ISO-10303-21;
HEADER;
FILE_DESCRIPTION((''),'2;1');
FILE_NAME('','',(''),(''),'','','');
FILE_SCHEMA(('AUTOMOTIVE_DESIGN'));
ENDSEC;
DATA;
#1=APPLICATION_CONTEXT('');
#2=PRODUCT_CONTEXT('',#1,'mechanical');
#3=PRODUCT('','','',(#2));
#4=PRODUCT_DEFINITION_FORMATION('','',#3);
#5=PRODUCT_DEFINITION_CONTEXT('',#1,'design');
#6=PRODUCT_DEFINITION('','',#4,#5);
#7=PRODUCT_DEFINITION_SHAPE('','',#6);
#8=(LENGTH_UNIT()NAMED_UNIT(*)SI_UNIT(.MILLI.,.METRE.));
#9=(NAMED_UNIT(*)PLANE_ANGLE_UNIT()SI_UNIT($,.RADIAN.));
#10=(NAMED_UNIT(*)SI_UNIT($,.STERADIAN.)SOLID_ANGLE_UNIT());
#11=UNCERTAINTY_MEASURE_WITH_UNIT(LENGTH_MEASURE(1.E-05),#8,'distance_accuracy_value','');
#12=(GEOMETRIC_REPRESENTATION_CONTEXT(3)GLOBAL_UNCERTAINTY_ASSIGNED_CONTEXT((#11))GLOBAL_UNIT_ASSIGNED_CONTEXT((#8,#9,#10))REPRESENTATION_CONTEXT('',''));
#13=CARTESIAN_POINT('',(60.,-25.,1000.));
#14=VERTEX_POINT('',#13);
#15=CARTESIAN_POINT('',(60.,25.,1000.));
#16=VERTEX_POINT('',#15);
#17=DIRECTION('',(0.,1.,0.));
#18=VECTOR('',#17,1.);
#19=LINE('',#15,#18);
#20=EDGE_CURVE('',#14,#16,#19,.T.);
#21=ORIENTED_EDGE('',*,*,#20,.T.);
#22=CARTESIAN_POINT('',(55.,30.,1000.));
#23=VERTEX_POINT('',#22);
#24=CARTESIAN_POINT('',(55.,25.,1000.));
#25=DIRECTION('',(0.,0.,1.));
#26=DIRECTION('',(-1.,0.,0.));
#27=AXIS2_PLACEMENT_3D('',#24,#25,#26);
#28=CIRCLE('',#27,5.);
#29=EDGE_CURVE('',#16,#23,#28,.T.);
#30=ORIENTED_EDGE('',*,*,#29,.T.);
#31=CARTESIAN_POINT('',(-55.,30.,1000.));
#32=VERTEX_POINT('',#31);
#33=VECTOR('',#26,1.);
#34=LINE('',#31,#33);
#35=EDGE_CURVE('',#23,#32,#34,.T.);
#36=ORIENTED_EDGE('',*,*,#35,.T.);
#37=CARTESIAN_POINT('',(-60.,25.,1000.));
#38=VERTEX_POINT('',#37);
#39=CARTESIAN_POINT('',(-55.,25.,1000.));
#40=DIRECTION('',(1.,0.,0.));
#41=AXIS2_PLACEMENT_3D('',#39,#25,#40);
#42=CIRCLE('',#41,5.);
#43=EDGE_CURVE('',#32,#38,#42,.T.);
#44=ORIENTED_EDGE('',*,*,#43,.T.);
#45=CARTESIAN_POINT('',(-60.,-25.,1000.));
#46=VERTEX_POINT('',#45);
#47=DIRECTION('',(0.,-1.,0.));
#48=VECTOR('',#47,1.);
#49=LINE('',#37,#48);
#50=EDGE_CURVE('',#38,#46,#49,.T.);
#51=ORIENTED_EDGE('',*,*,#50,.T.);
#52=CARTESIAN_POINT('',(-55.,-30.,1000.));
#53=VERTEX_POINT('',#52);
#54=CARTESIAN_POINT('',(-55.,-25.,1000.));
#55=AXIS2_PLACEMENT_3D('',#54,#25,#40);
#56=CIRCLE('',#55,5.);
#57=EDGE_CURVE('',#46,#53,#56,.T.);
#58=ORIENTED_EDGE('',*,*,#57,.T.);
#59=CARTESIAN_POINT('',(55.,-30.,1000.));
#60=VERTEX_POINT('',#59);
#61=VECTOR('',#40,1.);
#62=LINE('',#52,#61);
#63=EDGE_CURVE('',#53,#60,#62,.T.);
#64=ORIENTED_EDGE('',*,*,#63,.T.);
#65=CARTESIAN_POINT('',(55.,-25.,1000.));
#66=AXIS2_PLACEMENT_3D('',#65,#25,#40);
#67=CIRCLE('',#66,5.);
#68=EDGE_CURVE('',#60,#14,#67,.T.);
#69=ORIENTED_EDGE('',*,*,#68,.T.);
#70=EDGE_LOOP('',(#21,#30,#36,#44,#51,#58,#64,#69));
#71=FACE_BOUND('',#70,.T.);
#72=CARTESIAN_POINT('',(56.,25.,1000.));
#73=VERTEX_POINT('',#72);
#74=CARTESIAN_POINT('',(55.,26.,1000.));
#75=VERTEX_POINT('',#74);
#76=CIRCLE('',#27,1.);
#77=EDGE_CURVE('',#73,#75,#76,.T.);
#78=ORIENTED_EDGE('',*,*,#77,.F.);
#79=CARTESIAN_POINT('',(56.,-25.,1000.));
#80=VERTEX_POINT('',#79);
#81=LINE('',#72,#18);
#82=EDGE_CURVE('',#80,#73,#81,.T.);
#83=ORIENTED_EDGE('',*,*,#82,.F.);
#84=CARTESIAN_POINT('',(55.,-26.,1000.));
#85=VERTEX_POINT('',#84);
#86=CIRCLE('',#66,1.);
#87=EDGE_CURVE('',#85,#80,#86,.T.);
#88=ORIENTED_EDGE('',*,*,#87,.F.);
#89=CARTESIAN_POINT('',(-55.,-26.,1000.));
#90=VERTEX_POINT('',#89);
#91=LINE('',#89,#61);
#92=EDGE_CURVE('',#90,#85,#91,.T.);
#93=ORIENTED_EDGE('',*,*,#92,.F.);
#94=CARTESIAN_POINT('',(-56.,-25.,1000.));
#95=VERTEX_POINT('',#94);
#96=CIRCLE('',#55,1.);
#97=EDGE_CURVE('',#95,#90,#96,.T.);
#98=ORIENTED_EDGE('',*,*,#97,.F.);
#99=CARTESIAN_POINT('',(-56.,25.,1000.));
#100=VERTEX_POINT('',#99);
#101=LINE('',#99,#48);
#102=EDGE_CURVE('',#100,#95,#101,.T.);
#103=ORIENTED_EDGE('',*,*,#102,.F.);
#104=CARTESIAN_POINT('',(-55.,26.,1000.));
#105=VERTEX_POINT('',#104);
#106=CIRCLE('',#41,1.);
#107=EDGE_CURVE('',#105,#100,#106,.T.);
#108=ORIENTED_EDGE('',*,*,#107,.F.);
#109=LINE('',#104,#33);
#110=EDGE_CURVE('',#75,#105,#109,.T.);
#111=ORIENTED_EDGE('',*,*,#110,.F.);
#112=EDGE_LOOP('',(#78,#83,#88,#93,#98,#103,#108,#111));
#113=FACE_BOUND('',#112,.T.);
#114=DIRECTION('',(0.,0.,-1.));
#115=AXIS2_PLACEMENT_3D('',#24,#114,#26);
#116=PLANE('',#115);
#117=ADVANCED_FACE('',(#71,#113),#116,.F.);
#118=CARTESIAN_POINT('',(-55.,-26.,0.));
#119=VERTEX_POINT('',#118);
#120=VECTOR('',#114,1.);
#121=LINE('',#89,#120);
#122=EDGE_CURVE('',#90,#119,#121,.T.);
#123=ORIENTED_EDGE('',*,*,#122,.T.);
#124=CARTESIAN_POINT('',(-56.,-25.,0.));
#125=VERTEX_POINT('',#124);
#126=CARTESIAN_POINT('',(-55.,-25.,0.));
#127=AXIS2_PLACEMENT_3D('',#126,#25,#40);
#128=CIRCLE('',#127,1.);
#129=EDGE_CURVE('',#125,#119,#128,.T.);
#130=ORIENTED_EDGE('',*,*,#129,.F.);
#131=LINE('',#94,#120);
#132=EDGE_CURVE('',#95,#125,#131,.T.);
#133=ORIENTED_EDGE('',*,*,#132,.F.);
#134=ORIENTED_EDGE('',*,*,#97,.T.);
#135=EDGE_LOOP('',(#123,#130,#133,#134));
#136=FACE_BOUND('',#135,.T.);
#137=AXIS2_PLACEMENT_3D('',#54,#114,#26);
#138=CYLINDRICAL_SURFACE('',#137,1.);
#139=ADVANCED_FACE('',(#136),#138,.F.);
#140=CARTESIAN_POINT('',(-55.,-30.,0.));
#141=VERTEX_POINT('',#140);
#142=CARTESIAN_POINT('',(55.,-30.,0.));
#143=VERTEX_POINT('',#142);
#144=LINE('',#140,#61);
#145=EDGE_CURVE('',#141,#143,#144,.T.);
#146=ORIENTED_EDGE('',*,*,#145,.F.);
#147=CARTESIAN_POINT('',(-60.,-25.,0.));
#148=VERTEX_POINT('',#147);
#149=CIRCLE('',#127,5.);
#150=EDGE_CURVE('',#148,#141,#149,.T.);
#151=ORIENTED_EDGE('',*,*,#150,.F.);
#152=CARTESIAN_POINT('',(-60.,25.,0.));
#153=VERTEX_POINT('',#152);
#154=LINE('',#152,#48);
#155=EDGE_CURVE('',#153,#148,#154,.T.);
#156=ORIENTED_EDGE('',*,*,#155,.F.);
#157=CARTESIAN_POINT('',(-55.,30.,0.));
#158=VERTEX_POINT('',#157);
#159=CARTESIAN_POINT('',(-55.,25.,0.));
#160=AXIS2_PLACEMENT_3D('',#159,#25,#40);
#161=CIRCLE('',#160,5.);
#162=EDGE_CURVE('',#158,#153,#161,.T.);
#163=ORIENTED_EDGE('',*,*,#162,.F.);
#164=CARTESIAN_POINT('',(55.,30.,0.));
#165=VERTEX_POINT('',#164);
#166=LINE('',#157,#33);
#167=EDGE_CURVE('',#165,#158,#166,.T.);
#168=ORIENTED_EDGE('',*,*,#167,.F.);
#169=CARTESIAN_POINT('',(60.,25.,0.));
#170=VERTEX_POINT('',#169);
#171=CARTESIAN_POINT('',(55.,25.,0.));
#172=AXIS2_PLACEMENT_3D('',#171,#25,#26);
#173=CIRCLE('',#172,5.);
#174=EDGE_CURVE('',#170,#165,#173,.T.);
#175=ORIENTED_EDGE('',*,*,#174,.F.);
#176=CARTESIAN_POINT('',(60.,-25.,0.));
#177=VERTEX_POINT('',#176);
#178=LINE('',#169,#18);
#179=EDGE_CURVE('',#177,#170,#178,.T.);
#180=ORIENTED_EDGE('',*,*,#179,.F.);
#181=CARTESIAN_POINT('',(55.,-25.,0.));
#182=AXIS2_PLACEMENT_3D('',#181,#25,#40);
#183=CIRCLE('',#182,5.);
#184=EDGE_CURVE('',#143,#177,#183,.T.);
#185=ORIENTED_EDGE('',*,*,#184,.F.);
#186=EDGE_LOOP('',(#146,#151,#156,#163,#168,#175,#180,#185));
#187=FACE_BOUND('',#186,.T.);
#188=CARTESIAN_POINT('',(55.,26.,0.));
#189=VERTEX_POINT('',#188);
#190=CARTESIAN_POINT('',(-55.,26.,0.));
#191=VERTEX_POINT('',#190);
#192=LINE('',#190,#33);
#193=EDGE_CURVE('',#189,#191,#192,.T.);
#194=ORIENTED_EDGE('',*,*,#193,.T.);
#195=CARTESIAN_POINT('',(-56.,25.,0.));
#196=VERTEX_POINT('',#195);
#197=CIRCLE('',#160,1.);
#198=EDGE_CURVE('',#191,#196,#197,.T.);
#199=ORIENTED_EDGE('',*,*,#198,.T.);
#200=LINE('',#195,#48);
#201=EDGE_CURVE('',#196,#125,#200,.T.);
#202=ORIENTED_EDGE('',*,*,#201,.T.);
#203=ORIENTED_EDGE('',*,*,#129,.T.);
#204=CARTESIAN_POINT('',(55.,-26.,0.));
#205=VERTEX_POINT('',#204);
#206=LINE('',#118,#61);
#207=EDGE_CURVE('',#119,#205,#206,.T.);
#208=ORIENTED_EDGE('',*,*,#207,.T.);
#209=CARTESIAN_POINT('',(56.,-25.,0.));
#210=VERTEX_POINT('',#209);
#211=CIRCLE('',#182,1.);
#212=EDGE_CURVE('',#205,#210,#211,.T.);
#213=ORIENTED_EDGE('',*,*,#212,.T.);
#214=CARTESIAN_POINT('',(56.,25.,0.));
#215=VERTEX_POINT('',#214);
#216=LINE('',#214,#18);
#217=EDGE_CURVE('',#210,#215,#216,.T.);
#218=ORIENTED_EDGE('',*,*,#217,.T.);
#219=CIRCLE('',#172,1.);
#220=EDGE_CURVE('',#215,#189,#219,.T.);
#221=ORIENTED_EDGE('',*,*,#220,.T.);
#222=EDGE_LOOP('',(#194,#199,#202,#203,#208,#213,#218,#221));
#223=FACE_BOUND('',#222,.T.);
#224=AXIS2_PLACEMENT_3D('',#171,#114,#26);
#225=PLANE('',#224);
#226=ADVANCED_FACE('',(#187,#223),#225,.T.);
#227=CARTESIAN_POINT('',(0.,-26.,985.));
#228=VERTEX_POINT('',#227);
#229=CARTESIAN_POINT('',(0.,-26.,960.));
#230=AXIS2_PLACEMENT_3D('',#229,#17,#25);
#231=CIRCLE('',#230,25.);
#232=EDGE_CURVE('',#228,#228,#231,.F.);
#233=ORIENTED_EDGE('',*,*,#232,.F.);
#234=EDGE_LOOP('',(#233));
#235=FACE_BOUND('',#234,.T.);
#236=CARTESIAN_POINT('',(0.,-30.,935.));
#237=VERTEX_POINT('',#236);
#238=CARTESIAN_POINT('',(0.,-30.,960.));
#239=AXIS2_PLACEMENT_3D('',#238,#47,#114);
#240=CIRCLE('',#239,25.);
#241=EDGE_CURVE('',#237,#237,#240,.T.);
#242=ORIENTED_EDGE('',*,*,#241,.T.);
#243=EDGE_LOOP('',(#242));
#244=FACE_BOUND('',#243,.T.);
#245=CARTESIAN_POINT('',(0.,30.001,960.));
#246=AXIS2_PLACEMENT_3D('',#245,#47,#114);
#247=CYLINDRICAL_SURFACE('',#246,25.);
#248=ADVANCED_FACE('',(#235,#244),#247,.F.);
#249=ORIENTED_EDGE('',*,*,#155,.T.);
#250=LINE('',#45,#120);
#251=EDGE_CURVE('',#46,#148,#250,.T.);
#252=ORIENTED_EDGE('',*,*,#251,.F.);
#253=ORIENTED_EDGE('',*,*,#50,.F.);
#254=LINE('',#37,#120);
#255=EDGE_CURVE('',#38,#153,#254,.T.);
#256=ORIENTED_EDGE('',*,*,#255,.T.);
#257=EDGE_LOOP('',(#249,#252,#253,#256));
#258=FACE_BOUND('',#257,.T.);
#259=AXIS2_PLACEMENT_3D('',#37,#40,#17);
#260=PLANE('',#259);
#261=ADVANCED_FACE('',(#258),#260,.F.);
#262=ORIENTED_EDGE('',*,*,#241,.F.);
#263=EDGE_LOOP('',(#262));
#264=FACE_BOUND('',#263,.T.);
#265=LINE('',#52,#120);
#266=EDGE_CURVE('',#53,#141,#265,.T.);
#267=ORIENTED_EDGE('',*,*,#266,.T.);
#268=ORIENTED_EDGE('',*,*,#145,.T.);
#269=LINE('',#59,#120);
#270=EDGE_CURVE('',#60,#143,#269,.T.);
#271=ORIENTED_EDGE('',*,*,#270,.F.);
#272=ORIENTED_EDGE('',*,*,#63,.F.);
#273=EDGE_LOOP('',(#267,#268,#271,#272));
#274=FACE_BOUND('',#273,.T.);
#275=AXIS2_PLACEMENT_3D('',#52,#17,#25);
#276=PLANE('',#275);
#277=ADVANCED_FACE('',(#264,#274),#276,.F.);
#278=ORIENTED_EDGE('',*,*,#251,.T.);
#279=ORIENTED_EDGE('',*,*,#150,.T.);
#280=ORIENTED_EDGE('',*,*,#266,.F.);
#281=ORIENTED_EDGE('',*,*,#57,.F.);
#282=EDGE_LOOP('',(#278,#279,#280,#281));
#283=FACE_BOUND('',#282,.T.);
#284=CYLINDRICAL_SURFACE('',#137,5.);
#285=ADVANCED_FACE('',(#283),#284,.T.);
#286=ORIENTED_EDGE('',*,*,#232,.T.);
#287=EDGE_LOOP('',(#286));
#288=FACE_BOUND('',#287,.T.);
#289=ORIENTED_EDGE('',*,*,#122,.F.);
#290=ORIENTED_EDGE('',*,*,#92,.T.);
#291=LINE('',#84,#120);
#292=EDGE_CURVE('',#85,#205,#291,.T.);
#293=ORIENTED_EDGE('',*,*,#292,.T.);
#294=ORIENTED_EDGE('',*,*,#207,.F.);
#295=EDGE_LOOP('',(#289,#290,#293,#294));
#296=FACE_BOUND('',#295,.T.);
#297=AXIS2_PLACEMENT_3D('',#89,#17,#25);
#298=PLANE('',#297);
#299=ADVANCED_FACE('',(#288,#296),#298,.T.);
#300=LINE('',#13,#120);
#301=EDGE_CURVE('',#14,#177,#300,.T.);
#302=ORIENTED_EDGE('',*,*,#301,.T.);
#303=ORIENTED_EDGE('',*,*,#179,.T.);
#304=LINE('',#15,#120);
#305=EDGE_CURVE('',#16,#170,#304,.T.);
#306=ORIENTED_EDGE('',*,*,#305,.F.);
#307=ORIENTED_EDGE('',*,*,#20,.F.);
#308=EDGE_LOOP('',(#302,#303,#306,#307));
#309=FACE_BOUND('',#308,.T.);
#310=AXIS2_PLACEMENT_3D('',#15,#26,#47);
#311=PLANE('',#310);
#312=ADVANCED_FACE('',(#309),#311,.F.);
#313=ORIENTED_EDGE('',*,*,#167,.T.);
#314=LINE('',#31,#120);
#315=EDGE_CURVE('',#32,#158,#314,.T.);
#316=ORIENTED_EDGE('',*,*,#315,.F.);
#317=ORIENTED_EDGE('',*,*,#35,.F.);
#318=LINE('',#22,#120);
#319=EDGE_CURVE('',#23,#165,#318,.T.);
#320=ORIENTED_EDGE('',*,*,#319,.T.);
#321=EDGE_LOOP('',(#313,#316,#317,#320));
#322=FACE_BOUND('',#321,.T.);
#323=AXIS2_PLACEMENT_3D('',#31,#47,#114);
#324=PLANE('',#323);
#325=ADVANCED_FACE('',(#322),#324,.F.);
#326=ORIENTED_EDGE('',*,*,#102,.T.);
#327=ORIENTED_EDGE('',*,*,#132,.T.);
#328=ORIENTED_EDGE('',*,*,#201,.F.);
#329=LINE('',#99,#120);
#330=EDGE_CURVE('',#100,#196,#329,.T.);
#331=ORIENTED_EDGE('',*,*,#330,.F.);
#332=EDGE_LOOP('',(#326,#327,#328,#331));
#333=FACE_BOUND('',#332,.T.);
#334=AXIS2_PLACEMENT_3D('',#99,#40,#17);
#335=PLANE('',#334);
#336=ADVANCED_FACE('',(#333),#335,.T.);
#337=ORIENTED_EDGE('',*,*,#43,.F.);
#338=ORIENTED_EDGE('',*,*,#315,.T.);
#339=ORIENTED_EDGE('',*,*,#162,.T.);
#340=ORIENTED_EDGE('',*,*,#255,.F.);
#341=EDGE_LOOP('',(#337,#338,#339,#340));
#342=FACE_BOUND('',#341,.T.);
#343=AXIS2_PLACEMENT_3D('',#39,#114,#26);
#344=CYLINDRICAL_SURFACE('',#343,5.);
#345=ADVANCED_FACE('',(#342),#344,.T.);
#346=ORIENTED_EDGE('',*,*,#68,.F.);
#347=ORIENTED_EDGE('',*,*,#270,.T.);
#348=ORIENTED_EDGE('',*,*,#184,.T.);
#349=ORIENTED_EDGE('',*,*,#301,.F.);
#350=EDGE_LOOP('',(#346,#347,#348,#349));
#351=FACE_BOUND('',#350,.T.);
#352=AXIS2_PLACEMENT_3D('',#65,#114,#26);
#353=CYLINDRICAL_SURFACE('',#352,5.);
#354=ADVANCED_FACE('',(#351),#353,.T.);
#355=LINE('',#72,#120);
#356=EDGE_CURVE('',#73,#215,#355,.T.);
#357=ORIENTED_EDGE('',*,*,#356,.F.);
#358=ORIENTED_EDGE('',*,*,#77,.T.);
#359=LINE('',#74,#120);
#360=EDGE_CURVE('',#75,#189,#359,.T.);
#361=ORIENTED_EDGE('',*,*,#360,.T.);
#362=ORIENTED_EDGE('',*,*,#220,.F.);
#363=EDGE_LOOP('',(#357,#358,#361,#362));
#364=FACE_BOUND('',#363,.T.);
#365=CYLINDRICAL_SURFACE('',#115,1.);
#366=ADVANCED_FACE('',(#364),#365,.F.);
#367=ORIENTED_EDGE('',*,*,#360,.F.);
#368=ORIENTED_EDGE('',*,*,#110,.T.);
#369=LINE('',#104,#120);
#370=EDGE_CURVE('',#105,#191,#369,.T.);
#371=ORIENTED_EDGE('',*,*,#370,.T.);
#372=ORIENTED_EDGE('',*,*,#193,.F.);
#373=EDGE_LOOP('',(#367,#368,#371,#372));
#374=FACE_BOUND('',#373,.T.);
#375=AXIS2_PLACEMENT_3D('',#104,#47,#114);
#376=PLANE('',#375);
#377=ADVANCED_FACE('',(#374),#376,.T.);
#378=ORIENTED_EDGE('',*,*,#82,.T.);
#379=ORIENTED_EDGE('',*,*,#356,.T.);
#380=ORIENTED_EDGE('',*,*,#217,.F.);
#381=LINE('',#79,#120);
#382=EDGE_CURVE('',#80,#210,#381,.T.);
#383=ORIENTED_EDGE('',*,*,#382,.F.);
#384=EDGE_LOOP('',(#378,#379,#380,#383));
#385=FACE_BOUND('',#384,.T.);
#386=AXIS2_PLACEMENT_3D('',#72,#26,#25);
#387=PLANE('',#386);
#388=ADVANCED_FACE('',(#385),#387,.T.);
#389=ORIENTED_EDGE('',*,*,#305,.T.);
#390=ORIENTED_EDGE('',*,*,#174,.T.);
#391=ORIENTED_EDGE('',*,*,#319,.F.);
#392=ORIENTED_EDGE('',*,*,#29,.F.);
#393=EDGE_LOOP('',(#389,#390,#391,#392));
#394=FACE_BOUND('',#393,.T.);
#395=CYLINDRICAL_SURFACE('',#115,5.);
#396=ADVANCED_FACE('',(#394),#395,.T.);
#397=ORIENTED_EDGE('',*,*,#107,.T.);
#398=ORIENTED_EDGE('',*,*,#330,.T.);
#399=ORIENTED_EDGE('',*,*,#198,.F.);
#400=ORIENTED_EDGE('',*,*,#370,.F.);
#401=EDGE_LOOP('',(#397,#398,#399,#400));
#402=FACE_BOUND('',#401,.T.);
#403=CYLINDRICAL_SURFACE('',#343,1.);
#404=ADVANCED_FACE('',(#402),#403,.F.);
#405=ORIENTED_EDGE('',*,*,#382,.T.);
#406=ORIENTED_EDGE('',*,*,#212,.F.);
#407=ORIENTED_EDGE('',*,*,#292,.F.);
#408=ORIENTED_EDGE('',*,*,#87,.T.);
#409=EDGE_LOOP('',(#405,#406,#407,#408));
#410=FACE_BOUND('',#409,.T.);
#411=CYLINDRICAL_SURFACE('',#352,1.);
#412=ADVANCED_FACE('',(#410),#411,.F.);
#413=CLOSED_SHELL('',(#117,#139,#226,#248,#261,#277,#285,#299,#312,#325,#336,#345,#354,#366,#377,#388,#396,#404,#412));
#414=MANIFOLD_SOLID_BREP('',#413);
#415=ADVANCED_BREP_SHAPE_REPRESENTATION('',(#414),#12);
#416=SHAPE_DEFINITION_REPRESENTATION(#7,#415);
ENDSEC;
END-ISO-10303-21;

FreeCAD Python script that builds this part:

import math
import FreeCAD as App
import Part
import Sketcher
from FreeCAD import Vector

doc = App.newDocument("Part")
body = doc.addObject("PartDesign::Body", "Body")

# Sketch on XY plane
sketch1 = doc.addObject("Sketcher::SketchObject", "Sketch")
body.addObject(sketch1)
sketch1.AttachmentSupport = (doc.XY_Plane, [""])
sketch1.MapMode = "FlatFace"
sketch1.addGeometry([
    Part.LineSegment(Vector(55, 30, 0), Vector(-55, 30, 0)),  # 0
    Part.ArcOfCircle(Part.Circle(Vector(-55, 25, 0), Vector(0, 0, 1), 5), math.radians(90), math.radians(180)),  # 1
    Part.LineSegment(Vector(-60, 25, 0), Vector(-60, -25, 0)),  # 2
    Part.ArcOfCircle(Part.Circle(Vector(-55, -25, 0), Vector(0, 0, 1), 5), math.radians(180), math.radians(270)),  # 3
    Part.LineSegment(Vector(-55, -30, 0), Vector(55, -30, 0)),  # 4
    Part.ArcOfCircle(Part.Circle(Vector(55, -25, 0), Vector(0, 0, 1), 5), math.radians(-90), math.radians(0)),  # 5
    Part.LineSegment(Vector(60, -25, 0), Vector(60, 25, 0)),  # 6
    Part.ArcOfCircle(Part.Circle(Vector(55, 25, 0), Vector(0, 0, 1), 5), math.radians(0), math.radians(90)),  # 7
    Part.LineSegment(Vector(-55, 26, 0), Vector(55, 26, 0)),  # 8
    Part.ArcOfCircle(Part.Circle(Vector(55, 25, 0), Vector(0, 0, 1), 1), math.radians(0), math.radians(90)),  # 9
    Part.LineSegment(Vector(56, 25, 0), Vector(56, -25, 0)),  # 10
    Part.ArcOfCircle(Part.Circle(Vector(55, -25, 0), Vector(0, 0, 1), 1), math.radians(-90), math.radians(0)),  # 11
    Part.LineSegment(Vector(55, -26, 0), Vector(-55, -26, 0)),  # 12
    Part.ArcOfCircle(Part.Circle(Vector(-55, -25, 0), Vector(0, 0, 1), 1), math.radians(-180), math.radians(-90)),  # 13
    Part.LineSegment(Vector(-56, -25, 0), Vector(-56, 25, 0)),  # 14
    Part.ArcOfCircle(Part.Circle(Vector(-55, 25, 0), Vector(0, 0, 1), 1), math.radians(90), math.radians(180)),  # 15
], False)
sketch1.addConstraint([
    Sketcher.Constraint("Tangent", 0, 2, 1, 1),
    Sketcher.Constraint("Tangent", 1, 2, 2, 1),
    Sketcher.Constraint("Tangent", 2, 2, 3, 1),
    Sketcher.Constraint("Tangent", 3, 2, 4, 1),
    Sketcher.Constraint("Tangent", 4, 2, 5, 1),
    Sketcher.Constraint("Tangent", 5, 2, 6, 1),
    Sketcher.Constraint("Tangent", 6, 2, 7, 1),
    Sketcher.Constraint("Tangent", 7, 2, 0, 1),
    Sketcher.Constraint("Tangent", 8, 2, 9, 2),
    Sketcher.Constraint("Tangent", 9, 1, 10, 1),
    Sketcher.Constraint("Tangent", 10, 2, 11, 2),
    Sketcher.Constraint("Tangent", 11, 1, 12, 1),
    Sketcher.Constraint("Tangent", 12, 2, 13, 2),
    Sketcher.Constraint("Tangent", 13, 1, 14, 1),
    Sketcher.Constraint("Tangent", 14, 2, 15, 2),
    Sketcher.Constraint("Tangent", 15, 1, 8, 1),
    Sketcher.Constraint("Horizontal", 0),
    Sketcher.Constraint("Vertical", 2),
    Sketcher.Constraint("Horizontal", 4),
    Sketcher.Constraint("Vertical", 6),
    Sketcher.Constraint("Horizontal", 8),
    Sketcher.Constraint("Vertical", 10),
    Sketcher.Constraint("Horizontal", 12),
    Sketcher.Constraint("Vertical", 14),
    Sketcher.Constraint("Coincident", 9, 3, 7, 3),
    Sketcher.Constraint("Coincident", 11, 3, 5, 3),
    Sketcher.Constraint("Coincident", 13, 3, 3, 3),
    Sketcher.Constraint("Equal", 1, 3),
    Sketcher.Constraint("Equal", 3, 5),
    Sketcher.Constraint("Equal", 5, 7),
    Sketcher.Constraint("Equal", 13, 15),
    Sketcher.Constraint("Symmetric", 1, 3, 5, 3, -1, 1),
    Sketcher.Constraint("Radius", 1, 5.0),
    Sketcher.Constraint("Radius", 9, 1.0),
    Sketcher.Constraint("DistanceX", 0, 2, 0, 1, 110.0),
    Sketcher.Constraint("DistanceY", 2, 2, 2, 1, 50.0),
])
pad1 = doc.addObject("PartDesign::Pad", "Pad")
body.addObject(pad1)
pad1.Profile = sketch1
pad1.Length = 1000

# Sketch on XZ plane
sketch2 = doc.addObject("Sketcher::SketchObject", "Sketch001")
body.addObject(sketch2)
sketch2.AttachmentSupport = (doc.XZ_Plane, [""])
sketch2.MapMode = "FlatFace"
sketch2.AttachmentOffset = App.Placement(Vector(0, 0, 30), App.Rotation())
sketch2.addGeometry(Part.Circle(Vector(0, 960, 0), Vector(0, 0, 1), 25), False)
sketch2.addConstraint([
    Sketcher.Constraint("PointOnObject", 0, 3, -2),
    Sketcher.Constraint("Diameter", 0, 50.0),
    Sketcher.Constraint("DistanceY", -1, 1, 0, 3, 960.0),
])
pocket1 = doc.addObject("PartDesign::Pocket", "Pocket")
body.addObject(pocket1)
pocket1.Profile = sketch2
pocket1.Type = "UpToFirst"

doc.recompute()
